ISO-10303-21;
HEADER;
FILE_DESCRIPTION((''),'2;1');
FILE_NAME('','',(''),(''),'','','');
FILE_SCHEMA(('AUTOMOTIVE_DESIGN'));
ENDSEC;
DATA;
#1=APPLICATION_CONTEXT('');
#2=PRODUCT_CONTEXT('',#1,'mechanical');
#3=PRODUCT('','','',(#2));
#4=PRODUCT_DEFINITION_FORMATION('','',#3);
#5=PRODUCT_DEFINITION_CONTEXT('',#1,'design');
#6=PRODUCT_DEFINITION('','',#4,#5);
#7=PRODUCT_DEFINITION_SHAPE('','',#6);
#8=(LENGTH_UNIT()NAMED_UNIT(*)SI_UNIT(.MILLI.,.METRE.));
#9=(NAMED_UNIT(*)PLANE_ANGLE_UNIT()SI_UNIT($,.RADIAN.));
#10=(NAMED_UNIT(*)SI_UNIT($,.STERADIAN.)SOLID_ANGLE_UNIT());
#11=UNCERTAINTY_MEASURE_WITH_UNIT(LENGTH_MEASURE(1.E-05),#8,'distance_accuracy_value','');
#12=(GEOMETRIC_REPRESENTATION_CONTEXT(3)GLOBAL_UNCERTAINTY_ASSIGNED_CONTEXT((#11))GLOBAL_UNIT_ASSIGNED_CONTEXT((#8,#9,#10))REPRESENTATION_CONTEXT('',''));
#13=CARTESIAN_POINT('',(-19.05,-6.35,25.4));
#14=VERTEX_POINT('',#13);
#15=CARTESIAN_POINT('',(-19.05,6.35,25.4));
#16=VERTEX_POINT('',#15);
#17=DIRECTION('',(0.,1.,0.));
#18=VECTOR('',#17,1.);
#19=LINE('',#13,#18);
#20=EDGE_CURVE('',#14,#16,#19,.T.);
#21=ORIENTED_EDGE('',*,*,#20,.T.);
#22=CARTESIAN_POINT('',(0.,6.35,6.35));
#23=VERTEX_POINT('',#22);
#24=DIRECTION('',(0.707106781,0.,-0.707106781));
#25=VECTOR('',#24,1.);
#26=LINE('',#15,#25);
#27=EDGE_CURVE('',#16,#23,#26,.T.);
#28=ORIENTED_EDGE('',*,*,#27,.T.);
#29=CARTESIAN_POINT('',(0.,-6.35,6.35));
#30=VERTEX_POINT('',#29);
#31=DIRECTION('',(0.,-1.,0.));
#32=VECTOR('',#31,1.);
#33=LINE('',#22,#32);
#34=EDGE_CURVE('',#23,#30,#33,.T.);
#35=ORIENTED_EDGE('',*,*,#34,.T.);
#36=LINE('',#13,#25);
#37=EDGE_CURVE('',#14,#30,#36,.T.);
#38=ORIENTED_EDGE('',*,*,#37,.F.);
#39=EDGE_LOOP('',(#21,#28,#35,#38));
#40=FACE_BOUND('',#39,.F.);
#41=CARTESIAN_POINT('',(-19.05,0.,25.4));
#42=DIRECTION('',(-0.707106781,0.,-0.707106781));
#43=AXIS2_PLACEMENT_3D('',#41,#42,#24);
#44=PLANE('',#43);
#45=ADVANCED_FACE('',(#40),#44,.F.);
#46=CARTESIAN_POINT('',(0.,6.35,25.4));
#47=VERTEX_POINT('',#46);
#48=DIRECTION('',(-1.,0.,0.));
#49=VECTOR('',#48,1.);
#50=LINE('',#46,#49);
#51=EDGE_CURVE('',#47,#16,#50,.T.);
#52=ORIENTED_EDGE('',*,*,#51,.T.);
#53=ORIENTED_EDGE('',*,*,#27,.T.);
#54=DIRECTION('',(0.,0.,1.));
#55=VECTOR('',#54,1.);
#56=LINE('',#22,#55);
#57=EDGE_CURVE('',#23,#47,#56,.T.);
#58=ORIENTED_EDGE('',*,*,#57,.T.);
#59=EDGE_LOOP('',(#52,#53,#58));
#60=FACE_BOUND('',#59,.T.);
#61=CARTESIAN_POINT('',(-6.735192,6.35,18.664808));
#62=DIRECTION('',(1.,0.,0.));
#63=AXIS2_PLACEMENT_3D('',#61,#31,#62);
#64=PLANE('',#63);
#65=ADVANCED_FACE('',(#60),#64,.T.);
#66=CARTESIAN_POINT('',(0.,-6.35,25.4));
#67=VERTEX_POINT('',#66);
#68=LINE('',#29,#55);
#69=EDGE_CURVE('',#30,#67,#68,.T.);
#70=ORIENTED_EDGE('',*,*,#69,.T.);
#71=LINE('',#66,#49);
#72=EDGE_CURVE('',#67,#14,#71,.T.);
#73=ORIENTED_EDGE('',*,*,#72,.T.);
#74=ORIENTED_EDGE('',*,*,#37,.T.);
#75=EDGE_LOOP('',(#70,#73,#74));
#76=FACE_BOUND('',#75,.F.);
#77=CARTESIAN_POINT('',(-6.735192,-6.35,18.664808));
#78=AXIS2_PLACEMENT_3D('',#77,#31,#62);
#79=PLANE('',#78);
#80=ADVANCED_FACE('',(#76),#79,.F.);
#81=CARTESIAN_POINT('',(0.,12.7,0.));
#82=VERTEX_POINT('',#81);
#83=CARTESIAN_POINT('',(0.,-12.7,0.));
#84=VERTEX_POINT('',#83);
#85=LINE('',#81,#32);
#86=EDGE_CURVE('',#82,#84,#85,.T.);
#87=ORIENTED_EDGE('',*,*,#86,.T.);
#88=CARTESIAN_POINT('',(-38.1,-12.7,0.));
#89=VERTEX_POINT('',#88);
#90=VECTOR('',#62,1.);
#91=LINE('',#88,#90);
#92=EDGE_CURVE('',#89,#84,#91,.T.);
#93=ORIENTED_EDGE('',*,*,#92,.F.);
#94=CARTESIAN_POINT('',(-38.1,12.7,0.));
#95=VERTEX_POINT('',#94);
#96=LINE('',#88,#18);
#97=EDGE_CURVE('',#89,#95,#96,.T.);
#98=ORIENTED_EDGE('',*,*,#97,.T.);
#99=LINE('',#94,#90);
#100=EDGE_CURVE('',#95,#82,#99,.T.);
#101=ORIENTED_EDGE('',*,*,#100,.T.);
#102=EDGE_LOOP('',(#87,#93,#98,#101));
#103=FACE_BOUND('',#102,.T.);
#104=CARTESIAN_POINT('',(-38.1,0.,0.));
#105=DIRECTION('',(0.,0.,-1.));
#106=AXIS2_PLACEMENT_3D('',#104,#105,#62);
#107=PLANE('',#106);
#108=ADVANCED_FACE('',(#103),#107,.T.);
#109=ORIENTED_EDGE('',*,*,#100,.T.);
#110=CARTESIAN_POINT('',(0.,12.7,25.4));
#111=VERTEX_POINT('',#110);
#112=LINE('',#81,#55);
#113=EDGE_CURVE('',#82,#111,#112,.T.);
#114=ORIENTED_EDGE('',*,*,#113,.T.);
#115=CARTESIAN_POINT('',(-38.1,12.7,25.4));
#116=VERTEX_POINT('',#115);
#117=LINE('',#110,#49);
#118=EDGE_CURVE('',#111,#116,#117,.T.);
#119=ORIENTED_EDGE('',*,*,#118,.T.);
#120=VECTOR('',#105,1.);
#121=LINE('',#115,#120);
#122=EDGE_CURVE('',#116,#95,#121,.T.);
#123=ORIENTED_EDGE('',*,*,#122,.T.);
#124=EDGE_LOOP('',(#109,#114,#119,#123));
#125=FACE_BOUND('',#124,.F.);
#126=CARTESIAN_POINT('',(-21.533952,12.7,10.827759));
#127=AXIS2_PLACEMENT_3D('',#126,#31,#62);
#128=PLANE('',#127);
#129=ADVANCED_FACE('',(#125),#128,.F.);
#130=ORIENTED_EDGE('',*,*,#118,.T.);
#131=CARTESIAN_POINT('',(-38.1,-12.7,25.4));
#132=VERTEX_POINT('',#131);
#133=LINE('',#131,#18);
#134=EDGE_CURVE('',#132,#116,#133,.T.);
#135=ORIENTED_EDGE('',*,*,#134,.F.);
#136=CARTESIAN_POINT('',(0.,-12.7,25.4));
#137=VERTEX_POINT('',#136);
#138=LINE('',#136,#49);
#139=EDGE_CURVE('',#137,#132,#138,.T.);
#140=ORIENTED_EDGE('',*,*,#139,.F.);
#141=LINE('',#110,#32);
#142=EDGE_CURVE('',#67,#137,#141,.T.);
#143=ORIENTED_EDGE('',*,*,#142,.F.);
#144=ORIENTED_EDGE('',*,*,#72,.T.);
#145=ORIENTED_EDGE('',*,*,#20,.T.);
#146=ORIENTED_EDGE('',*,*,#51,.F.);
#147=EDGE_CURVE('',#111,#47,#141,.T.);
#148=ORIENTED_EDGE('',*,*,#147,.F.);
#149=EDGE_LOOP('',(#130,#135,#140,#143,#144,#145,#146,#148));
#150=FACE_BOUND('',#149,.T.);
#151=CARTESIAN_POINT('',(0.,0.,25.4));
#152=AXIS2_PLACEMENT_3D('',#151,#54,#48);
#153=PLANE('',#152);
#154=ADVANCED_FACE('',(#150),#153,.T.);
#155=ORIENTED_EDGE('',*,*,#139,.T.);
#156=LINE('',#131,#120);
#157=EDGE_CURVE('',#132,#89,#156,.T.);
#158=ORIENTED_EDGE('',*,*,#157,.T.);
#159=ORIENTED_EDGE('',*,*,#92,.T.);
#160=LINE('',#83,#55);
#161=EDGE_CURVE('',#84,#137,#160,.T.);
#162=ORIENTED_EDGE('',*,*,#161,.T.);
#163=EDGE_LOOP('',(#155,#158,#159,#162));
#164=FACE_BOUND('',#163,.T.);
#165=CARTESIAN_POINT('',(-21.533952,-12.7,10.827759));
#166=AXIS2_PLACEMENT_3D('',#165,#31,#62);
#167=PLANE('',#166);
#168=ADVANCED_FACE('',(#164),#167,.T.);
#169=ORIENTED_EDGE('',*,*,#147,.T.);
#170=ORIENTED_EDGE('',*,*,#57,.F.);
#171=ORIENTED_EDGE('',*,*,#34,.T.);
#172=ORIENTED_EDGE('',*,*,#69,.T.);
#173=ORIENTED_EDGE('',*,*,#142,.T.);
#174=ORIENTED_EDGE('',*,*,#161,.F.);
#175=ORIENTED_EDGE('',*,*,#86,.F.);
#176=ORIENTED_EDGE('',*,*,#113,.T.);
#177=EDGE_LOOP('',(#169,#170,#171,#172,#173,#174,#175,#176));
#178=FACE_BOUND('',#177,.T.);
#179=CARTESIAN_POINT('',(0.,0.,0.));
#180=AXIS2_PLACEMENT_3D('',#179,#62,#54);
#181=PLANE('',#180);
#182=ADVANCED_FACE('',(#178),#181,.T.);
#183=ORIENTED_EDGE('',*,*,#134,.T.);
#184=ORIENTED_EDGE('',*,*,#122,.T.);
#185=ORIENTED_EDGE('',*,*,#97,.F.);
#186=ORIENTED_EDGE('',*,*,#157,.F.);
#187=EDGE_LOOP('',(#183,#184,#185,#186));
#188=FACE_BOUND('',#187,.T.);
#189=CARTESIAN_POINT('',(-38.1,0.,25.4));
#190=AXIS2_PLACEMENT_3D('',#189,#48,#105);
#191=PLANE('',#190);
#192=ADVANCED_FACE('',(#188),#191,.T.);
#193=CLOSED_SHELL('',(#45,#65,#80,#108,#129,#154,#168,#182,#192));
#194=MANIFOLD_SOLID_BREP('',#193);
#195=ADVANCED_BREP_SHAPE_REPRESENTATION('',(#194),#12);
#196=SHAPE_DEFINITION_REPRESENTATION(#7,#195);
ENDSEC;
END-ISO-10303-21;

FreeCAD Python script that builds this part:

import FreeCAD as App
import Part
import Sketcher
from FreeCAD import Vector
Q = App.Units.Quantity

doc = App.newDocument("Part")
body = doc.addObject("PartDesign::Body", "Body")

# Sketch on XZ plane
sketch1 = body.newObject("Sketcher::SketchObject", "Sketch")
sketch1.AttachmentSupport = (doc.getObject("XZ_Plane"), [""])
sketch1.MapMode = "FlatFace"
sketch1.addGeometry(Part.LineSegment(Vector(-38.1, 0, 0), Vector(0, 0, 0)), False)
sketch1.addGeometry(Part.LineSegment(Vector(0, 0, 0), Vector(0, 25.4, 0)), False)
sketch1.addGeometry(Part.LineSegment(Vector(0, 25.4, 0), Vector(-38.1, 25.4, 0)), False)
sketch1.addGeometry(Part.LineSegment(Vector(-38.1, 25.4, 0), Vector(-38.1, 0, 0)), False)
sketch1.addConstraint(Sketcher.Constraint("Coincident", 0, 2, 1, 1))
sketch1.addConstraint(Sketcher.Constraint("Coincident", 1, 2, 2, 1))
sketch1.addConstraint(Sketcher.Constraint("Coincident", 2, 2, 3, 1))
sketch1.addConstraint(Sketcher.Constraint("Coincident", 3, 2, 0, 1))
sketch1.addConstraint(Sketcher.Constraint("Horizontal", 0))
sketch1.addConstraint(Sketcher.Constraint("Vertical", 1))
sketch1.addConstraint(Sketcher.Constraint("Horizontal", 2))
sketch1.addConstraint(Sketcher.Constraint("Vertical", 3))
sketch1.addConstraint(Sketcher.Constraint("Coincident", 0, 2, -1, 1))
sketch1.addConstraint(Sketcher.Constraint("DistanceY", 1, 1, 1, 2, Q("1 in")))
sketch1.addConstraint(Sketcher.Constraint("DistanceX", 0, 1, 0, 2, Q("1.5 in")))
pad1 = body.newObject("PartDesign::Pad", "Pad")
pad1.Profile = sketch1
pad1.Length = Q("1 in")
pad1.Midplane = True

# Sketch on XZ plane
sketch2 = body.newObject("Sketcher::SketchObject", "Sketch001")
sketch2.AttachmentSupport = (doc.getObject("XZ_Plane"), [""])
sketch2.MapMode = "FlatFace"
sketch2.addGeometry(Part.LineSegment(Vector(-19.05, 25.4, 0), Vector(0, 6.35, 0)), False)
sketch2.addGeometry(Part.LineSegment(Vector(0, 6.35, 0), Vector(0, 25.4, 0)), False)
sketch2.addGeometry(Part.LineSegment(Vector(0, 25.4, 0), Vector(-19.05, 25.4, 0)), False)
sketch2.addConstraint(Sketcher.Constraint("Coincident", 0, 2, 1, 1))
sketch2.addConstraint(Sketcher.Constraint("Coincident", 1, 2, 2, 1))
sketch2.addConstraint(Sketcher.Constraint("Coincident", 2, 2, 0, 1))
sketch2.addConstraint(Sketcher.Constraint("Vertical", 1))
sketch2.addConstraint(Sketcher.Constraint("Horizontal", 2))
sketch2.addConstraint(Sketcher.Constraint("PointOnObject", 0, 2, -2))
sketch2.addConstraint(Sketcher.Constraint("Equal", 2, 1))
sketch2.addConstraint(Sketcher.Constraint("DistanceY", -1, 1, 1, 2, Q("1 in")))
sketch2.addConstraint(Sketcher.Constraint("DistanceX", 2, 2, 2, 1, Q("0.75 in")))
pocket1 = body.newObject("PartDesign::Pocket", "Pocket")
pocket1.Profile = sketch2
pocket1.Length = Q("0.5 in")
pocket1.Midplane = True

doc.recompute()
